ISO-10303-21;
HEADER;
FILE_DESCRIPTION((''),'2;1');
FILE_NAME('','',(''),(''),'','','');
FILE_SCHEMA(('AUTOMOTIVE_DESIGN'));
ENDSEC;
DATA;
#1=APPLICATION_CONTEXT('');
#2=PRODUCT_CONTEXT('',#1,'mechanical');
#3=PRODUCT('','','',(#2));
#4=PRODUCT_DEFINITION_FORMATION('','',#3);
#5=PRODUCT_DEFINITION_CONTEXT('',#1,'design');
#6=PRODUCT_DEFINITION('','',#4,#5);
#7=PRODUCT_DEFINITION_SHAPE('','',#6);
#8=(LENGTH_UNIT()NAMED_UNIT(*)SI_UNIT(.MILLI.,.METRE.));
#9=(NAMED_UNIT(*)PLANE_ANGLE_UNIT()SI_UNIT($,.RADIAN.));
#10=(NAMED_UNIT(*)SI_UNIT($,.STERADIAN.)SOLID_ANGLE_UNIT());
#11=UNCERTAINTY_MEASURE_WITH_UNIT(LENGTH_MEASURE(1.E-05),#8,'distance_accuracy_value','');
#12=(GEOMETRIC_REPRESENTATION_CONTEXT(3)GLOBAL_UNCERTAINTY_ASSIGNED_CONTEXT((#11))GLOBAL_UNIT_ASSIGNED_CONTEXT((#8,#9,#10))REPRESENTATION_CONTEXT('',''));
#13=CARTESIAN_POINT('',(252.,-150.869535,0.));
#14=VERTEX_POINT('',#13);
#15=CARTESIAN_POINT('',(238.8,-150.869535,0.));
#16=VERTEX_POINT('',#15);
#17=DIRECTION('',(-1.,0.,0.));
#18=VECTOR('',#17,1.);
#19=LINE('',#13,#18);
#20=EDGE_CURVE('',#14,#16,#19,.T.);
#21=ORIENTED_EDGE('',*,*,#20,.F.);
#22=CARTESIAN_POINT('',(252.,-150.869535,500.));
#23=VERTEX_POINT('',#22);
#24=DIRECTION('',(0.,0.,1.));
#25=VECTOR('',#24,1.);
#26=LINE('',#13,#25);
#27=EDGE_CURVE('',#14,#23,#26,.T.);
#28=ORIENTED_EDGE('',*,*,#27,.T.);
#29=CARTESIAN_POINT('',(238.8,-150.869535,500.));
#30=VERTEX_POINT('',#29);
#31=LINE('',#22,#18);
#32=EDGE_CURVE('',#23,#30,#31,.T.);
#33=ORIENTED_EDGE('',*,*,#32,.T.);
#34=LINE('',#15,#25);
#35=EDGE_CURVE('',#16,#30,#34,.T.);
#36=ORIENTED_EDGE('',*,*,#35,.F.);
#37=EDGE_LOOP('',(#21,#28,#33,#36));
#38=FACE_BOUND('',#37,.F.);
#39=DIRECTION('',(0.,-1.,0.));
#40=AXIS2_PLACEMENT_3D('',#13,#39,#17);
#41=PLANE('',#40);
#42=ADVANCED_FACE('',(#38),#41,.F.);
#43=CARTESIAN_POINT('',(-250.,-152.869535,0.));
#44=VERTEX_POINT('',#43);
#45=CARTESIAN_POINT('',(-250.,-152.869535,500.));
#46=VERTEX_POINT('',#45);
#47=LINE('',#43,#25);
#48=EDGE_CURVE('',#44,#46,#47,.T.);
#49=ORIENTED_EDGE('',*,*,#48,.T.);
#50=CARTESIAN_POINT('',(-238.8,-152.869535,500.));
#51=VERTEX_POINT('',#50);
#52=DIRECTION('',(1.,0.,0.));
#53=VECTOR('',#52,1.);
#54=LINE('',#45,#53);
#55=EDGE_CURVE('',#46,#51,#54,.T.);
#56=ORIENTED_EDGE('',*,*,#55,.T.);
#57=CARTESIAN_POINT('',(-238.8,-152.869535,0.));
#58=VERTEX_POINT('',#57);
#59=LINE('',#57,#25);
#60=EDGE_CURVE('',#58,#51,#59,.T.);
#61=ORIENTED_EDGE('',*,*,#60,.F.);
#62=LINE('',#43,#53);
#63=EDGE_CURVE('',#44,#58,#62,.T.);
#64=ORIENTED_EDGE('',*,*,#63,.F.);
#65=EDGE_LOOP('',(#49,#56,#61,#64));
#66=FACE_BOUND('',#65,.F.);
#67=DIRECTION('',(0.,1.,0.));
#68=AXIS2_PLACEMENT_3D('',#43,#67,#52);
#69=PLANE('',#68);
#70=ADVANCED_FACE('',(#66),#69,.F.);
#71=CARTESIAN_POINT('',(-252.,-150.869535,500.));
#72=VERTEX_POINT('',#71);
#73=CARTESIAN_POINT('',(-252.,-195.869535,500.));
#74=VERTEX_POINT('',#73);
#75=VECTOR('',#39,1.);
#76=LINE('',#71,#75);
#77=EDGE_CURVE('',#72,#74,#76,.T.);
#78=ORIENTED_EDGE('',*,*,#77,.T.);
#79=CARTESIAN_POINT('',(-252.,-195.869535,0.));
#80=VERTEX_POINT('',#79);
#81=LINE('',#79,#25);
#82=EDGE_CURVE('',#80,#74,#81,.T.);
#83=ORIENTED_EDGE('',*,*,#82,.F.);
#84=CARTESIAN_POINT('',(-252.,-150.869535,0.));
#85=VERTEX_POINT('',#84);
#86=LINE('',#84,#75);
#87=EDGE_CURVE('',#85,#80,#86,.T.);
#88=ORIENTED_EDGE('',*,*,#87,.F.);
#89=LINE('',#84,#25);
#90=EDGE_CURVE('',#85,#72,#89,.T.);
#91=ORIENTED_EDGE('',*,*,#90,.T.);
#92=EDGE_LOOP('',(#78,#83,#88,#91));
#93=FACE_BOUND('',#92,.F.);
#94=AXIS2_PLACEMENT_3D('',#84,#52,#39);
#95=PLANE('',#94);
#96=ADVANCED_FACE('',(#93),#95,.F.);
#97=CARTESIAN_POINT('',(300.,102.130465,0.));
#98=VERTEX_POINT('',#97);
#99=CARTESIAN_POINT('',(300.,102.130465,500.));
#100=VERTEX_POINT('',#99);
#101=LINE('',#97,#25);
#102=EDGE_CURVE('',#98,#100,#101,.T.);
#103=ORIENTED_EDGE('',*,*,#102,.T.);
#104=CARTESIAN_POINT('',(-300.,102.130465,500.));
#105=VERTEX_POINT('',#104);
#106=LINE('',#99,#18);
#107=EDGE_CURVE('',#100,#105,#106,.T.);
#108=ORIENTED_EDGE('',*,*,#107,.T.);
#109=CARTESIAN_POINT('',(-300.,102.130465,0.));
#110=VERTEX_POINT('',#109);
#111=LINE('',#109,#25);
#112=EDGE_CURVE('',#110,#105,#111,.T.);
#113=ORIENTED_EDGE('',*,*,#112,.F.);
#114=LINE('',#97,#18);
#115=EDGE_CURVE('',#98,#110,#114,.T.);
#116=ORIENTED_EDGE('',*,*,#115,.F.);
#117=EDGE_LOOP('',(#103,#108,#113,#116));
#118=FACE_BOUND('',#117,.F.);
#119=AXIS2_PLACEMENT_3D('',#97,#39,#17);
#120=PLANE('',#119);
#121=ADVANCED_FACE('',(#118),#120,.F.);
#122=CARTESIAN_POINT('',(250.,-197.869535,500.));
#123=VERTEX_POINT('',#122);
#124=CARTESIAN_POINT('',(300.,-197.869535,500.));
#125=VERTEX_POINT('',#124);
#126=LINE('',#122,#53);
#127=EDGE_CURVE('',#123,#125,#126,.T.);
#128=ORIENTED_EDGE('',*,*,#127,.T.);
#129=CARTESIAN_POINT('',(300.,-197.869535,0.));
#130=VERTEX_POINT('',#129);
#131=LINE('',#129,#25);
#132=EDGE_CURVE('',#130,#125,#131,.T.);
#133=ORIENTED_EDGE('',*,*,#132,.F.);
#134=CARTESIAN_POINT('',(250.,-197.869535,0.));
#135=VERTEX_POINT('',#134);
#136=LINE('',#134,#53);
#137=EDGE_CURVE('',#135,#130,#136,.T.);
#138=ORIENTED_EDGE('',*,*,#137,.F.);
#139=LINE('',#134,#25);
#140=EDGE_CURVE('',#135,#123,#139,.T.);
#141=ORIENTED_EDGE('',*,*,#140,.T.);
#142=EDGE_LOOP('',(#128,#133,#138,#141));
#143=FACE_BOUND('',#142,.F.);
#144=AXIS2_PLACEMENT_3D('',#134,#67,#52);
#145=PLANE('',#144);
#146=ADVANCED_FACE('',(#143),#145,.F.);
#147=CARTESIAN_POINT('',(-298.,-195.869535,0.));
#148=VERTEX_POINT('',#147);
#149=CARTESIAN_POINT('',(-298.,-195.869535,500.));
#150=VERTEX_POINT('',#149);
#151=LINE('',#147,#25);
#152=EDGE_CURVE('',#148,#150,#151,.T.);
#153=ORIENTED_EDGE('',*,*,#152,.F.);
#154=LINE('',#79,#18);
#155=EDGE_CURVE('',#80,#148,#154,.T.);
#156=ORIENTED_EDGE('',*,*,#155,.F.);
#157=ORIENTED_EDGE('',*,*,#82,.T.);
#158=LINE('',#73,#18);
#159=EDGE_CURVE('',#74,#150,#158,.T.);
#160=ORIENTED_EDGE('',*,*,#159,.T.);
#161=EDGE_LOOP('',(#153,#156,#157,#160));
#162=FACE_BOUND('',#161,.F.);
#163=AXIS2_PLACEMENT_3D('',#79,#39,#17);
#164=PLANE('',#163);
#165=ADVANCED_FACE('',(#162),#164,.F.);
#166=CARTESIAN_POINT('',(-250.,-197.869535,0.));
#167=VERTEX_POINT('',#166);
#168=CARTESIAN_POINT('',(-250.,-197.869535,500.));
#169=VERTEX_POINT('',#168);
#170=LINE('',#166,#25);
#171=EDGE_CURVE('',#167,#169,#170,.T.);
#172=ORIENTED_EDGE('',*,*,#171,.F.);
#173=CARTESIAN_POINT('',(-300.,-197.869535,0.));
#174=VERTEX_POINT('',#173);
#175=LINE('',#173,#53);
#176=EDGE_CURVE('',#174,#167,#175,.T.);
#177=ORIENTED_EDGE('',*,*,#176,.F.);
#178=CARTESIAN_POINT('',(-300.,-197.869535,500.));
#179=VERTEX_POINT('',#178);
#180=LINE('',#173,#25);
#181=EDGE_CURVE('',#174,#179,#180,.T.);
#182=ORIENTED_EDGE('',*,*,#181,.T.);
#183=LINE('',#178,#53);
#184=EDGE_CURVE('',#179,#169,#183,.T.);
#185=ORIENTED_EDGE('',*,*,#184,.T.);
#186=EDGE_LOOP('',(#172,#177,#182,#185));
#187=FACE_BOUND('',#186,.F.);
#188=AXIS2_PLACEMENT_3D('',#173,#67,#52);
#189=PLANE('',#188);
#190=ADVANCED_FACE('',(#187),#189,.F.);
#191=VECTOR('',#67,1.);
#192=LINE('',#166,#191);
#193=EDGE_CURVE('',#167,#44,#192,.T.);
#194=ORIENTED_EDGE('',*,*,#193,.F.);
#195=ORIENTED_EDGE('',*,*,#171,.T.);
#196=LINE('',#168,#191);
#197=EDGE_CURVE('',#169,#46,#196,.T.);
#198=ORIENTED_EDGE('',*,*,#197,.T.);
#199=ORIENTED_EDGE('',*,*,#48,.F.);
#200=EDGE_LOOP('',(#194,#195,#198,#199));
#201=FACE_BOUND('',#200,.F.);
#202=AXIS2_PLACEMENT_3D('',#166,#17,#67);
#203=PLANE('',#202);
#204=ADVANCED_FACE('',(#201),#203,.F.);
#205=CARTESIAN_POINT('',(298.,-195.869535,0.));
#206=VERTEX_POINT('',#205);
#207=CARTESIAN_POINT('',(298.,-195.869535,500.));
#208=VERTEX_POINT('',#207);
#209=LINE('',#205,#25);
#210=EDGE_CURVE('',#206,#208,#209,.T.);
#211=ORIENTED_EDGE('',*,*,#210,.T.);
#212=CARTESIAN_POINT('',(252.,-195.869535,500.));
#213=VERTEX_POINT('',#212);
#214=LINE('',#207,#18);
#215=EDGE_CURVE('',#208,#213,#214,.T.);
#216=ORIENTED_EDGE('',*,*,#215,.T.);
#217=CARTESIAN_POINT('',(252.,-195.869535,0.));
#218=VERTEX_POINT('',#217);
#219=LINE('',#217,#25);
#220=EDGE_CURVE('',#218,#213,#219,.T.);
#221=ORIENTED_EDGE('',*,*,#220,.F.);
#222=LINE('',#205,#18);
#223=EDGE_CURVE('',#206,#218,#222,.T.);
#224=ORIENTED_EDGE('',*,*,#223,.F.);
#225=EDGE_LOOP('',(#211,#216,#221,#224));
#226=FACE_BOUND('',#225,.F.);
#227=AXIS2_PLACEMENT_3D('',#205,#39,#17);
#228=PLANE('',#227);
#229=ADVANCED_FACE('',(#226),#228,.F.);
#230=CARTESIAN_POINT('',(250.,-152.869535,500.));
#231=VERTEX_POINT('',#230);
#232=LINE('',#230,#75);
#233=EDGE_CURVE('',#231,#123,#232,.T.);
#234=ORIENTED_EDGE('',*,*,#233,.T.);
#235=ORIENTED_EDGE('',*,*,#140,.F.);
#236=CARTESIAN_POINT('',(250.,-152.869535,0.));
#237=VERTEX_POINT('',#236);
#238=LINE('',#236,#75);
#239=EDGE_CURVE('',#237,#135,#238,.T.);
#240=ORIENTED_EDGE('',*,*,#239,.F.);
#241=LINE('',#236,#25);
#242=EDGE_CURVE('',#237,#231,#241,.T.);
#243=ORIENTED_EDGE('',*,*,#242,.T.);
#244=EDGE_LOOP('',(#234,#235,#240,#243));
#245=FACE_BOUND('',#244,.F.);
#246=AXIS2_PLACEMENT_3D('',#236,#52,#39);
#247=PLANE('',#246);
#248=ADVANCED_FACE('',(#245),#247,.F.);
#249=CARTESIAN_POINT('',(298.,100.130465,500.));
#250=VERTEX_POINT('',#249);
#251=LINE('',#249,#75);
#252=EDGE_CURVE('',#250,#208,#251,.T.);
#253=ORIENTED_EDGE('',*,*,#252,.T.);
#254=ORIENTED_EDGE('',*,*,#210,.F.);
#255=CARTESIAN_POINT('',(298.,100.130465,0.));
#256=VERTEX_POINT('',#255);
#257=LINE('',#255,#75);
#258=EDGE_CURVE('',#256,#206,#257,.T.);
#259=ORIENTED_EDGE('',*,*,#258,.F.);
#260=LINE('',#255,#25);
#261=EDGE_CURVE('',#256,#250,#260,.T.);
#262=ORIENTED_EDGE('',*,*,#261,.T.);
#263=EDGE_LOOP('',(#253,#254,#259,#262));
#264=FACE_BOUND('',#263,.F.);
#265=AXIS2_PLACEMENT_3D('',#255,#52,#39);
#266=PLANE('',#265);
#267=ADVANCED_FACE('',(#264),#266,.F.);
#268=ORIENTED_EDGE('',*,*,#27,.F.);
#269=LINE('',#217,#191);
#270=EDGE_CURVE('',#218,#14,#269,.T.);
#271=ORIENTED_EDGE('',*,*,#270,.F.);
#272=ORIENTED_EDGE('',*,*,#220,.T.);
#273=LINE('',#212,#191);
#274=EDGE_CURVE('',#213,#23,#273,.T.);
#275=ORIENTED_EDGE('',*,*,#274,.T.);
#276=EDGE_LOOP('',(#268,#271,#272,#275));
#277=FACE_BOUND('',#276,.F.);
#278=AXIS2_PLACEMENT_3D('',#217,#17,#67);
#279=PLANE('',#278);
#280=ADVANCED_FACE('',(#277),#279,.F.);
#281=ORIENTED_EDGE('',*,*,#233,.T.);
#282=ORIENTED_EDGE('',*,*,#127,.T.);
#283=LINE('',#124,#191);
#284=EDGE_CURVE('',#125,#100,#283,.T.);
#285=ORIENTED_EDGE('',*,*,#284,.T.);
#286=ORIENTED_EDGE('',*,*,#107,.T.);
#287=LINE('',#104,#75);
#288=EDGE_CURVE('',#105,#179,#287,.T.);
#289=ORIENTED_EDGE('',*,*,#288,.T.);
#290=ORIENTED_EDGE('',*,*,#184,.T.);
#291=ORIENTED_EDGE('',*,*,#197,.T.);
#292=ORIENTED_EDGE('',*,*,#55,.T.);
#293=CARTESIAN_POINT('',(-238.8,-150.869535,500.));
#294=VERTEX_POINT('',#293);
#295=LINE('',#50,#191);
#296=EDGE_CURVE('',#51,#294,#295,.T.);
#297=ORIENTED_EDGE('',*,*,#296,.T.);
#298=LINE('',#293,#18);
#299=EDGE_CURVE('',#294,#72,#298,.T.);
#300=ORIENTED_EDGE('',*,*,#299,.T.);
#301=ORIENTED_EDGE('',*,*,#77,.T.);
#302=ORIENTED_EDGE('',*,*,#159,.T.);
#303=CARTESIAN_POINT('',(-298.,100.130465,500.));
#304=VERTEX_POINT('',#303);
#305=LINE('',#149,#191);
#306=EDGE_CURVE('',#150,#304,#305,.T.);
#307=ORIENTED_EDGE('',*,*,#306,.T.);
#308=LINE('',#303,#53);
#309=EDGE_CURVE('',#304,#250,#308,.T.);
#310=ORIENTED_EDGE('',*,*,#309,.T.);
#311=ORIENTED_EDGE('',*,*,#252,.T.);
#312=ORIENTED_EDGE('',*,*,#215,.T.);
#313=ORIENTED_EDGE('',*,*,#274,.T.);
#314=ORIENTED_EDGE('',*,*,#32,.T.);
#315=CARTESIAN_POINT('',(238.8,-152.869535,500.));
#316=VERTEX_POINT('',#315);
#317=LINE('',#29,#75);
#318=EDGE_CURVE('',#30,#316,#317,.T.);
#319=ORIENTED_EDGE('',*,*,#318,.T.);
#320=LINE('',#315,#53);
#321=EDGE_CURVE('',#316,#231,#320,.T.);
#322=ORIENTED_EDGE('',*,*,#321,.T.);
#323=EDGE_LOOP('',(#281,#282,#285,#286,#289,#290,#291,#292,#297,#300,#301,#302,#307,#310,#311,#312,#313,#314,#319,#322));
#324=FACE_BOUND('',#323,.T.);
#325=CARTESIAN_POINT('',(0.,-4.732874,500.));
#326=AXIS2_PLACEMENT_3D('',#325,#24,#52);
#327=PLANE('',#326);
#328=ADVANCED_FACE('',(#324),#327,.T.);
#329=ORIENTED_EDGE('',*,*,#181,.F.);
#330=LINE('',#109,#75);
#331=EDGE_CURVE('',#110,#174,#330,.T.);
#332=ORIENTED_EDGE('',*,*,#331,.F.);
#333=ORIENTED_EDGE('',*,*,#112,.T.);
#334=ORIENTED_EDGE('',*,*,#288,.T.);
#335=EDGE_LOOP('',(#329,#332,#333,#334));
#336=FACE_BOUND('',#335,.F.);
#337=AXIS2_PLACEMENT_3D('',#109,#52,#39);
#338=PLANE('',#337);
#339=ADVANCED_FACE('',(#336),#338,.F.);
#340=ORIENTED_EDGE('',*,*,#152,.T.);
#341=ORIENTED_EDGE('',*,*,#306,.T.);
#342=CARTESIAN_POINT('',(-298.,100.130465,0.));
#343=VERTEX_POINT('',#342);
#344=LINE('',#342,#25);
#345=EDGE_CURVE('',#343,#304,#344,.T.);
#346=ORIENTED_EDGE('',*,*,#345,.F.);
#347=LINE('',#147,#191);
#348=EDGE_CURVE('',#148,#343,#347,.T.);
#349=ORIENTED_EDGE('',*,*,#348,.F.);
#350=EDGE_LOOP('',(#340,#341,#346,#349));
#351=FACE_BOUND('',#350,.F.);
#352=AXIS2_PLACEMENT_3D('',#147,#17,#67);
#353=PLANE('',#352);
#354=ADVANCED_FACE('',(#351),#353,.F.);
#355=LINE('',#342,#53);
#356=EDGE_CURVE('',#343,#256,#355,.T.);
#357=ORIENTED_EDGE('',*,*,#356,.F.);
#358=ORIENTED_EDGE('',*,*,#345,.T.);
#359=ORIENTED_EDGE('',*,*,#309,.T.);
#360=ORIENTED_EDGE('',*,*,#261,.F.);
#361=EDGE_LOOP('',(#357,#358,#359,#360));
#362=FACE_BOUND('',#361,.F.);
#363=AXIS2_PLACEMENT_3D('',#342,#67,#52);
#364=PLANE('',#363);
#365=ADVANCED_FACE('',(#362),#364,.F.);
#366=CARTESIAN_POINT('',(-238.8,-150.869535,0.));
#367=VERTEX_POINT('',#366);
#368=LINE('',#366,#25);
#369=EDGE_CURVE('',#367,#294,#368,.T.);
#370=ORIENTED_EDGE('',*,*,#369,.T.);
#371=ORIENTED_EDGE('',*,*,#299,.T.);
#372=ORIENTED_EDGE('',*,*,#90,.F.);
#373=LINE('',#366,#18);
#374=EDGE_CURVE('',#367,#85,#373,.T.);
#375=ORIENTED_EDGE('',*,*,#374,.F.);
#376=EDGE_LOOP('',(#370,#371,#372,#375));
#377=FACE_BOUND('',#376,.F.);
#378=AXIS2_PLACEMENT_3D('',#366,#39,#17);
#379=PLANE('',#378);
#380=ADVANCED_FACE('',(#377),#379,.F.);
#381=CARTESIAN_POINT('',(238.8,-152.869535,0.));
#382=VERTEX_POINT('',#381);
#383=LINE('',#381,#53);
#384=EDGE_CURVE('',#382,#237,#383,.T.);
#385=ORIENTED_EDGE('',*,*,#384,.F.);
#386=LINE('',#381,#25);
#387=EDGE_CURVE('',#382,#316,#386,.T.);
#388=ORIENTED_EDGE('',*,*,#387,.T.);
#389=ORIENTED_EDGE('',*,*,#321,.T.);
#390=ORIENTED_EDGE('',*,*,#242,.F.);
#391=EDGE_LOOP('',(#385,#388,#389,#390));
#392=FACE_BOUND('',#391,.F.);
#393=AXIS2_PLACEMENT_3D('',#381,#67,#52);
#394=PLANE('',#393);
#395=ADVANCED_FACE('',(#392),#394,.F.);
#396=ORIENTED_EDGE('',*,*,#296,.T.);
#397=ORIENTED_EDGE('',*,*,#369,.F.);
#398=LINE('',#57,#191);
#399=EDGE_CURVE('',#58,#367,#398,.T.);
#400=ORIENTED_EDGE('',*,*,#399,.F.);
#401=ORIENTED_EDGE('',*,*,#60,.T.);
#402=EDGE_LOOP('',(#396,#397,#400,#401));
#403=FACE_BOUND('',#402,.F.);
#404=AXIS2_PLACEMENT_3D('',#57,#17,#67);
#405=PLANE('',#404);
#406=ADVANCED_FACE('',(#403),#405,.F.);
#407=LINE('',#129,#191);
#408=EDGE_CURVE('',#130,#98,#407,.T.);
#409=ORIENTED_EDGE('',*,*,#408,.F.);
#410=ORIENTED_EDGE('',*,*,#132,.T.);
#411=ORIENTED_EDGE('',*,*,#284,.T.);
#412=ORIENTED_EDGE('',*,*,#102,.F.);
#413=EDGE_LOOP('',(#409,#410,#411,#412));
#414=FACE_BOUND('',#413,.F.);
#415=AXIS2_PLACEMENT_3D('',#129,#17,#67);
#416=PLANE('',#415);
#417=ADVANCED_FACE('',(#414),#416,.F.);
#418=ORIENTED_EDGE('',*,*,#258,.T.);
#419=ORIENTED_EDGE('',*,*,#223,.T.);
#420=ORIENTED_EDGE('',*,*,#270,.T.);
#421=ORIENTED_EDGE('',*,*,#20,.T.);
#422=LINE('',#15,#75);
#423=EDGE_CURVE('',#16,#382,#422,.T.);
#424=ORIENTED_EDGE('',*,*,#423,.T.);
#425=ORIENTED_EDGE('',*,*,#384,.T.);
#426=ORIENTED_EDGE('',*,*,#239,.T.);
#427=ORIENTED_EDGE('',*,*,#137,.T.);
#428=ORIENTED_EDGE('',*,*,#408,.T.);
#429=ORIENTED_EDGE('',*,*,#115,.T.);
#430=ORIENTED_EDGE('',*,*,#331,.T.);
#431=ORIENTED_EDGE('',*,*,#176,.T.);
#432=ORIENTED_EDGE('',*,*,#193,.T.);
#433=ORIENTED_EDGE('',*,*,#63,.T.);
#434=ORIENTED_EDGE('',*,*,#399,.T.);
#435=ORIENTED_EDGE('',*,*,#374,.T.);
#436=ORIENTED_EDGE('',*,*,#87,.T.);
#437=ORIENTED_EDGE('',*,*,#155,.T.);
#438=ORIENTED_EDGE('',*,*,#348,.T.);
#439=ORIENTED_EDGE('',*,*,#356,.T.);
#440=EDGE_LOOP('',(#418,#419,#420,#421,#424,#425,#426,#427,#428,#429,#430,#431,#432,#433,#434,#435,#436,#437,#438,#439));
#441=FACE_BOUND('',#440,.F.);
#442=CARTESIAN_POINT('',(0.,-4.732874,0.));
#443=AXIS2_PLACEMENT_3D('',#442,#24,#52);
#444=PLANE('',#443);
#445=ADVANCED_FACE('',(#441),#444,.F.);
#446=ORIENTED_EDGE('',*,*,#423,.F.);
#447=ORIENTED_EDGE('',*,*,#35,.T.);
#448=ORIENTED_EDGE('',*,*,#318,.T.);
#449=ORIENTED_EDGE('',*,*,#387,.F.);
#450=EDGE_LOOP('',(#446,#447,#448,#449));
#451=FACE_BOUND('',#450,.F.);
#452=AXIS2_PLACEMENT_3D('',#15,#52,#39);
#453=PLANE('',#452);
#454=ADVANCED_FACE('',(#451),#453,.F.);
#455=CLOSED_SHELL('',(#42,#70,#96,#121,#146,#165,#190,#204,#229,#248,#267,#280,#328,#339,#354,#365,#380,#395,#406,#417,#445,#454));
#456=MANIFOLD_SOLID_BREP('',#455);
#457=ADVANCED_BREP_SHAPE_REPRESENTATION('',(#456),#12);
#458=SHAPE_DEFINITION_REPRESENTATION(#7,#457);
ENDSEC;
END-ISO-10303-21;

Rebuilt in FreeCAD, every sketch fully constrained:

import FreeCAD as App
import Part
import Sketcher

V = App.Vector


def add_polygon(sketch, points):
    """Adds a closed chain of lines whose ends are joined by coincident constraints."""
    first, n = sketch.GeometryCount, len(points)
    for a, b in zip(points, points[1:] + points[:1]):
        sketch.addGeometry(Part.LineSegment(App.Vector(*a, 0), App.Vector(*b, 0)), False)
    for i in range(n):
        sketch.addConstraint(Sketcher.Constraint("Coincident", first + i, 2, first + (i + 1) % n, 1))

doc = App.newDocument("Part")
params = doc.addObject("Spreadsheet::Sheet", "Params")
for row, (alias, value) in enumerate([
    ("sketch1_width", "600 mm"),
    ("sketch1_width2", "50 mm"),
    ("sketch1_width3", "46 mm"),
    ("sketch1_width4", "596 mm"),
    ("sketch1_height", "300 mm"),
    ("pad1_length", "500 mm"),
], start=1):
    params.set(f"A{row}", alias)
    params.set(f"B{row}", "=" + value)
    params.setAlias(f"B{row}", alias)

body = doc.addObject("PartDesign::Body", "Body")

# Sketch on XY plane
sketch1 = body.newObject("Sketcher::SketchObject", "Sketch")
sketch1.AttachmentSupport = (doc.getObject("XY_Plane"), [""])
sketch1.MapMode = "FlatFace"
add_polygon(sketch1, [(300, 102.130465), (-300, 102.130465), (-300, -197.869535), (-250, -197.869535), (-250, -152.869535), (-238.8, -152.869535), (-238.8, -150.869535), (-252, -150.869535), (-252, -195.869535), (-298, -195.869535), (-298, 100.130465), (298, 100.130465), (298, -195.869535), (252, -195.869535), (252, -150.869535), (238.8, -150.869535), (238.8, -152.869535), (250, -152.869535), (250, -197.869535), (300, -197.869535)])  # lines 0-19
sketch1.addConstraint([
    Sketcher.Constraint("Horizontal", 0),
    Sketcher.Constraint("Vertical", 1),
    Sketcher.Constraint("Horizontal", 2),
    Sketcher.Constraint("Vertical", 3),
    Sketcher.Constraint("Horizontal", 4),
    Sketcher.Constraint("Vertical", 5),
    Sketcher.Constraint("Horizontal", 6),
    Sketcher.Constraint("Vertical", 7),
    Sketcher.Constraint("Horizontal", 8),
    Sketcher.Constraint("Vertical", 9),
    Sketcher.Constraint("Horizontal", 10),
    Sketcher.Constraint("Vertical", 11),
    Sketcher.Constraint("Horizontal", 12),
    Sketcher.Constraint("Vertical", 13),
    Sketcher.Constraint("Horizontal", 14),
    Sketcher.Constraint("Vertical", 15),
    Sketcher.Constraint("Horizontal", 16),
    Sketcher.Constraint("Vertical", 17),
    Sketcher.Constraint("Horizontal", 18),
    Sketcher.Constraint("Vertical", 19),
    Sketcher.Constraint("Symmetric", 8, 2, 11, 2, -2),
    Sketcher.Constraint("Symmetric", 6, 2, 13, 2, -2),
    Sketcher.Constraint("Symmetric", 4, 2, 15, 2, -2),
    Sketcher.Constraint("Symmetric", 2, 2, 17, 2, -2),
    Sketcher.Constraint("Equal", 2, 18),
    Sketcher.Constraint("Equal", 3, 7),
    Sketcher.Constraint("DistanceX", 0, 2, 0, 1, 600.0),
    Sketcher.Constraint("DistanceX", 2, 1, 2, 2, 50.0),
    Sketcher.Constraint("DistanceX", 8, 2, 8, 1, 46.0),
    Sketcher.Constraint("DistanceX", 10, 1, 10, 2, 596.0),
    Sketcher.Constraint("DistanceY", 1, 2, 1, 1, 300.0),
    Sketcher.Constraint("DistanceY", 3, 1, 3, 2, 45.0),
    Sketcher.Constraint("DistanceY", 5, 1, 5, 2, 2.0),
    Sketcher.Constraint("DistanceY", 9, 1, 9, 2, 296.0),
    Sketcher.Constraint("DistanceX", 4, 1, 4, 2, 11.2),
    Sketcher.Constraint("DistanceY", -1, 1, 0, 2, 102.130465),
])
sketch1.setExpression("Constraints[46]", "Params.sketch1_width")
sketch1.setExpression("Constraints[47]", "Params.sketch1_width2")
sketch1.setExpression("Constraints[48]", "Params.sketch1_width3")
sketch1.setExpression("Constraints[49]", "Params.sketch1_width4")
sketch1.setExpression("Constraints[50]", "Params.sketch1_height")
pad1 = body.newObject("PartDesign::Pad", "Pad")
pad1.Profile = sketch1
pad1.setExpression("Length", "Params.pad1_length")

doc.recompute()
